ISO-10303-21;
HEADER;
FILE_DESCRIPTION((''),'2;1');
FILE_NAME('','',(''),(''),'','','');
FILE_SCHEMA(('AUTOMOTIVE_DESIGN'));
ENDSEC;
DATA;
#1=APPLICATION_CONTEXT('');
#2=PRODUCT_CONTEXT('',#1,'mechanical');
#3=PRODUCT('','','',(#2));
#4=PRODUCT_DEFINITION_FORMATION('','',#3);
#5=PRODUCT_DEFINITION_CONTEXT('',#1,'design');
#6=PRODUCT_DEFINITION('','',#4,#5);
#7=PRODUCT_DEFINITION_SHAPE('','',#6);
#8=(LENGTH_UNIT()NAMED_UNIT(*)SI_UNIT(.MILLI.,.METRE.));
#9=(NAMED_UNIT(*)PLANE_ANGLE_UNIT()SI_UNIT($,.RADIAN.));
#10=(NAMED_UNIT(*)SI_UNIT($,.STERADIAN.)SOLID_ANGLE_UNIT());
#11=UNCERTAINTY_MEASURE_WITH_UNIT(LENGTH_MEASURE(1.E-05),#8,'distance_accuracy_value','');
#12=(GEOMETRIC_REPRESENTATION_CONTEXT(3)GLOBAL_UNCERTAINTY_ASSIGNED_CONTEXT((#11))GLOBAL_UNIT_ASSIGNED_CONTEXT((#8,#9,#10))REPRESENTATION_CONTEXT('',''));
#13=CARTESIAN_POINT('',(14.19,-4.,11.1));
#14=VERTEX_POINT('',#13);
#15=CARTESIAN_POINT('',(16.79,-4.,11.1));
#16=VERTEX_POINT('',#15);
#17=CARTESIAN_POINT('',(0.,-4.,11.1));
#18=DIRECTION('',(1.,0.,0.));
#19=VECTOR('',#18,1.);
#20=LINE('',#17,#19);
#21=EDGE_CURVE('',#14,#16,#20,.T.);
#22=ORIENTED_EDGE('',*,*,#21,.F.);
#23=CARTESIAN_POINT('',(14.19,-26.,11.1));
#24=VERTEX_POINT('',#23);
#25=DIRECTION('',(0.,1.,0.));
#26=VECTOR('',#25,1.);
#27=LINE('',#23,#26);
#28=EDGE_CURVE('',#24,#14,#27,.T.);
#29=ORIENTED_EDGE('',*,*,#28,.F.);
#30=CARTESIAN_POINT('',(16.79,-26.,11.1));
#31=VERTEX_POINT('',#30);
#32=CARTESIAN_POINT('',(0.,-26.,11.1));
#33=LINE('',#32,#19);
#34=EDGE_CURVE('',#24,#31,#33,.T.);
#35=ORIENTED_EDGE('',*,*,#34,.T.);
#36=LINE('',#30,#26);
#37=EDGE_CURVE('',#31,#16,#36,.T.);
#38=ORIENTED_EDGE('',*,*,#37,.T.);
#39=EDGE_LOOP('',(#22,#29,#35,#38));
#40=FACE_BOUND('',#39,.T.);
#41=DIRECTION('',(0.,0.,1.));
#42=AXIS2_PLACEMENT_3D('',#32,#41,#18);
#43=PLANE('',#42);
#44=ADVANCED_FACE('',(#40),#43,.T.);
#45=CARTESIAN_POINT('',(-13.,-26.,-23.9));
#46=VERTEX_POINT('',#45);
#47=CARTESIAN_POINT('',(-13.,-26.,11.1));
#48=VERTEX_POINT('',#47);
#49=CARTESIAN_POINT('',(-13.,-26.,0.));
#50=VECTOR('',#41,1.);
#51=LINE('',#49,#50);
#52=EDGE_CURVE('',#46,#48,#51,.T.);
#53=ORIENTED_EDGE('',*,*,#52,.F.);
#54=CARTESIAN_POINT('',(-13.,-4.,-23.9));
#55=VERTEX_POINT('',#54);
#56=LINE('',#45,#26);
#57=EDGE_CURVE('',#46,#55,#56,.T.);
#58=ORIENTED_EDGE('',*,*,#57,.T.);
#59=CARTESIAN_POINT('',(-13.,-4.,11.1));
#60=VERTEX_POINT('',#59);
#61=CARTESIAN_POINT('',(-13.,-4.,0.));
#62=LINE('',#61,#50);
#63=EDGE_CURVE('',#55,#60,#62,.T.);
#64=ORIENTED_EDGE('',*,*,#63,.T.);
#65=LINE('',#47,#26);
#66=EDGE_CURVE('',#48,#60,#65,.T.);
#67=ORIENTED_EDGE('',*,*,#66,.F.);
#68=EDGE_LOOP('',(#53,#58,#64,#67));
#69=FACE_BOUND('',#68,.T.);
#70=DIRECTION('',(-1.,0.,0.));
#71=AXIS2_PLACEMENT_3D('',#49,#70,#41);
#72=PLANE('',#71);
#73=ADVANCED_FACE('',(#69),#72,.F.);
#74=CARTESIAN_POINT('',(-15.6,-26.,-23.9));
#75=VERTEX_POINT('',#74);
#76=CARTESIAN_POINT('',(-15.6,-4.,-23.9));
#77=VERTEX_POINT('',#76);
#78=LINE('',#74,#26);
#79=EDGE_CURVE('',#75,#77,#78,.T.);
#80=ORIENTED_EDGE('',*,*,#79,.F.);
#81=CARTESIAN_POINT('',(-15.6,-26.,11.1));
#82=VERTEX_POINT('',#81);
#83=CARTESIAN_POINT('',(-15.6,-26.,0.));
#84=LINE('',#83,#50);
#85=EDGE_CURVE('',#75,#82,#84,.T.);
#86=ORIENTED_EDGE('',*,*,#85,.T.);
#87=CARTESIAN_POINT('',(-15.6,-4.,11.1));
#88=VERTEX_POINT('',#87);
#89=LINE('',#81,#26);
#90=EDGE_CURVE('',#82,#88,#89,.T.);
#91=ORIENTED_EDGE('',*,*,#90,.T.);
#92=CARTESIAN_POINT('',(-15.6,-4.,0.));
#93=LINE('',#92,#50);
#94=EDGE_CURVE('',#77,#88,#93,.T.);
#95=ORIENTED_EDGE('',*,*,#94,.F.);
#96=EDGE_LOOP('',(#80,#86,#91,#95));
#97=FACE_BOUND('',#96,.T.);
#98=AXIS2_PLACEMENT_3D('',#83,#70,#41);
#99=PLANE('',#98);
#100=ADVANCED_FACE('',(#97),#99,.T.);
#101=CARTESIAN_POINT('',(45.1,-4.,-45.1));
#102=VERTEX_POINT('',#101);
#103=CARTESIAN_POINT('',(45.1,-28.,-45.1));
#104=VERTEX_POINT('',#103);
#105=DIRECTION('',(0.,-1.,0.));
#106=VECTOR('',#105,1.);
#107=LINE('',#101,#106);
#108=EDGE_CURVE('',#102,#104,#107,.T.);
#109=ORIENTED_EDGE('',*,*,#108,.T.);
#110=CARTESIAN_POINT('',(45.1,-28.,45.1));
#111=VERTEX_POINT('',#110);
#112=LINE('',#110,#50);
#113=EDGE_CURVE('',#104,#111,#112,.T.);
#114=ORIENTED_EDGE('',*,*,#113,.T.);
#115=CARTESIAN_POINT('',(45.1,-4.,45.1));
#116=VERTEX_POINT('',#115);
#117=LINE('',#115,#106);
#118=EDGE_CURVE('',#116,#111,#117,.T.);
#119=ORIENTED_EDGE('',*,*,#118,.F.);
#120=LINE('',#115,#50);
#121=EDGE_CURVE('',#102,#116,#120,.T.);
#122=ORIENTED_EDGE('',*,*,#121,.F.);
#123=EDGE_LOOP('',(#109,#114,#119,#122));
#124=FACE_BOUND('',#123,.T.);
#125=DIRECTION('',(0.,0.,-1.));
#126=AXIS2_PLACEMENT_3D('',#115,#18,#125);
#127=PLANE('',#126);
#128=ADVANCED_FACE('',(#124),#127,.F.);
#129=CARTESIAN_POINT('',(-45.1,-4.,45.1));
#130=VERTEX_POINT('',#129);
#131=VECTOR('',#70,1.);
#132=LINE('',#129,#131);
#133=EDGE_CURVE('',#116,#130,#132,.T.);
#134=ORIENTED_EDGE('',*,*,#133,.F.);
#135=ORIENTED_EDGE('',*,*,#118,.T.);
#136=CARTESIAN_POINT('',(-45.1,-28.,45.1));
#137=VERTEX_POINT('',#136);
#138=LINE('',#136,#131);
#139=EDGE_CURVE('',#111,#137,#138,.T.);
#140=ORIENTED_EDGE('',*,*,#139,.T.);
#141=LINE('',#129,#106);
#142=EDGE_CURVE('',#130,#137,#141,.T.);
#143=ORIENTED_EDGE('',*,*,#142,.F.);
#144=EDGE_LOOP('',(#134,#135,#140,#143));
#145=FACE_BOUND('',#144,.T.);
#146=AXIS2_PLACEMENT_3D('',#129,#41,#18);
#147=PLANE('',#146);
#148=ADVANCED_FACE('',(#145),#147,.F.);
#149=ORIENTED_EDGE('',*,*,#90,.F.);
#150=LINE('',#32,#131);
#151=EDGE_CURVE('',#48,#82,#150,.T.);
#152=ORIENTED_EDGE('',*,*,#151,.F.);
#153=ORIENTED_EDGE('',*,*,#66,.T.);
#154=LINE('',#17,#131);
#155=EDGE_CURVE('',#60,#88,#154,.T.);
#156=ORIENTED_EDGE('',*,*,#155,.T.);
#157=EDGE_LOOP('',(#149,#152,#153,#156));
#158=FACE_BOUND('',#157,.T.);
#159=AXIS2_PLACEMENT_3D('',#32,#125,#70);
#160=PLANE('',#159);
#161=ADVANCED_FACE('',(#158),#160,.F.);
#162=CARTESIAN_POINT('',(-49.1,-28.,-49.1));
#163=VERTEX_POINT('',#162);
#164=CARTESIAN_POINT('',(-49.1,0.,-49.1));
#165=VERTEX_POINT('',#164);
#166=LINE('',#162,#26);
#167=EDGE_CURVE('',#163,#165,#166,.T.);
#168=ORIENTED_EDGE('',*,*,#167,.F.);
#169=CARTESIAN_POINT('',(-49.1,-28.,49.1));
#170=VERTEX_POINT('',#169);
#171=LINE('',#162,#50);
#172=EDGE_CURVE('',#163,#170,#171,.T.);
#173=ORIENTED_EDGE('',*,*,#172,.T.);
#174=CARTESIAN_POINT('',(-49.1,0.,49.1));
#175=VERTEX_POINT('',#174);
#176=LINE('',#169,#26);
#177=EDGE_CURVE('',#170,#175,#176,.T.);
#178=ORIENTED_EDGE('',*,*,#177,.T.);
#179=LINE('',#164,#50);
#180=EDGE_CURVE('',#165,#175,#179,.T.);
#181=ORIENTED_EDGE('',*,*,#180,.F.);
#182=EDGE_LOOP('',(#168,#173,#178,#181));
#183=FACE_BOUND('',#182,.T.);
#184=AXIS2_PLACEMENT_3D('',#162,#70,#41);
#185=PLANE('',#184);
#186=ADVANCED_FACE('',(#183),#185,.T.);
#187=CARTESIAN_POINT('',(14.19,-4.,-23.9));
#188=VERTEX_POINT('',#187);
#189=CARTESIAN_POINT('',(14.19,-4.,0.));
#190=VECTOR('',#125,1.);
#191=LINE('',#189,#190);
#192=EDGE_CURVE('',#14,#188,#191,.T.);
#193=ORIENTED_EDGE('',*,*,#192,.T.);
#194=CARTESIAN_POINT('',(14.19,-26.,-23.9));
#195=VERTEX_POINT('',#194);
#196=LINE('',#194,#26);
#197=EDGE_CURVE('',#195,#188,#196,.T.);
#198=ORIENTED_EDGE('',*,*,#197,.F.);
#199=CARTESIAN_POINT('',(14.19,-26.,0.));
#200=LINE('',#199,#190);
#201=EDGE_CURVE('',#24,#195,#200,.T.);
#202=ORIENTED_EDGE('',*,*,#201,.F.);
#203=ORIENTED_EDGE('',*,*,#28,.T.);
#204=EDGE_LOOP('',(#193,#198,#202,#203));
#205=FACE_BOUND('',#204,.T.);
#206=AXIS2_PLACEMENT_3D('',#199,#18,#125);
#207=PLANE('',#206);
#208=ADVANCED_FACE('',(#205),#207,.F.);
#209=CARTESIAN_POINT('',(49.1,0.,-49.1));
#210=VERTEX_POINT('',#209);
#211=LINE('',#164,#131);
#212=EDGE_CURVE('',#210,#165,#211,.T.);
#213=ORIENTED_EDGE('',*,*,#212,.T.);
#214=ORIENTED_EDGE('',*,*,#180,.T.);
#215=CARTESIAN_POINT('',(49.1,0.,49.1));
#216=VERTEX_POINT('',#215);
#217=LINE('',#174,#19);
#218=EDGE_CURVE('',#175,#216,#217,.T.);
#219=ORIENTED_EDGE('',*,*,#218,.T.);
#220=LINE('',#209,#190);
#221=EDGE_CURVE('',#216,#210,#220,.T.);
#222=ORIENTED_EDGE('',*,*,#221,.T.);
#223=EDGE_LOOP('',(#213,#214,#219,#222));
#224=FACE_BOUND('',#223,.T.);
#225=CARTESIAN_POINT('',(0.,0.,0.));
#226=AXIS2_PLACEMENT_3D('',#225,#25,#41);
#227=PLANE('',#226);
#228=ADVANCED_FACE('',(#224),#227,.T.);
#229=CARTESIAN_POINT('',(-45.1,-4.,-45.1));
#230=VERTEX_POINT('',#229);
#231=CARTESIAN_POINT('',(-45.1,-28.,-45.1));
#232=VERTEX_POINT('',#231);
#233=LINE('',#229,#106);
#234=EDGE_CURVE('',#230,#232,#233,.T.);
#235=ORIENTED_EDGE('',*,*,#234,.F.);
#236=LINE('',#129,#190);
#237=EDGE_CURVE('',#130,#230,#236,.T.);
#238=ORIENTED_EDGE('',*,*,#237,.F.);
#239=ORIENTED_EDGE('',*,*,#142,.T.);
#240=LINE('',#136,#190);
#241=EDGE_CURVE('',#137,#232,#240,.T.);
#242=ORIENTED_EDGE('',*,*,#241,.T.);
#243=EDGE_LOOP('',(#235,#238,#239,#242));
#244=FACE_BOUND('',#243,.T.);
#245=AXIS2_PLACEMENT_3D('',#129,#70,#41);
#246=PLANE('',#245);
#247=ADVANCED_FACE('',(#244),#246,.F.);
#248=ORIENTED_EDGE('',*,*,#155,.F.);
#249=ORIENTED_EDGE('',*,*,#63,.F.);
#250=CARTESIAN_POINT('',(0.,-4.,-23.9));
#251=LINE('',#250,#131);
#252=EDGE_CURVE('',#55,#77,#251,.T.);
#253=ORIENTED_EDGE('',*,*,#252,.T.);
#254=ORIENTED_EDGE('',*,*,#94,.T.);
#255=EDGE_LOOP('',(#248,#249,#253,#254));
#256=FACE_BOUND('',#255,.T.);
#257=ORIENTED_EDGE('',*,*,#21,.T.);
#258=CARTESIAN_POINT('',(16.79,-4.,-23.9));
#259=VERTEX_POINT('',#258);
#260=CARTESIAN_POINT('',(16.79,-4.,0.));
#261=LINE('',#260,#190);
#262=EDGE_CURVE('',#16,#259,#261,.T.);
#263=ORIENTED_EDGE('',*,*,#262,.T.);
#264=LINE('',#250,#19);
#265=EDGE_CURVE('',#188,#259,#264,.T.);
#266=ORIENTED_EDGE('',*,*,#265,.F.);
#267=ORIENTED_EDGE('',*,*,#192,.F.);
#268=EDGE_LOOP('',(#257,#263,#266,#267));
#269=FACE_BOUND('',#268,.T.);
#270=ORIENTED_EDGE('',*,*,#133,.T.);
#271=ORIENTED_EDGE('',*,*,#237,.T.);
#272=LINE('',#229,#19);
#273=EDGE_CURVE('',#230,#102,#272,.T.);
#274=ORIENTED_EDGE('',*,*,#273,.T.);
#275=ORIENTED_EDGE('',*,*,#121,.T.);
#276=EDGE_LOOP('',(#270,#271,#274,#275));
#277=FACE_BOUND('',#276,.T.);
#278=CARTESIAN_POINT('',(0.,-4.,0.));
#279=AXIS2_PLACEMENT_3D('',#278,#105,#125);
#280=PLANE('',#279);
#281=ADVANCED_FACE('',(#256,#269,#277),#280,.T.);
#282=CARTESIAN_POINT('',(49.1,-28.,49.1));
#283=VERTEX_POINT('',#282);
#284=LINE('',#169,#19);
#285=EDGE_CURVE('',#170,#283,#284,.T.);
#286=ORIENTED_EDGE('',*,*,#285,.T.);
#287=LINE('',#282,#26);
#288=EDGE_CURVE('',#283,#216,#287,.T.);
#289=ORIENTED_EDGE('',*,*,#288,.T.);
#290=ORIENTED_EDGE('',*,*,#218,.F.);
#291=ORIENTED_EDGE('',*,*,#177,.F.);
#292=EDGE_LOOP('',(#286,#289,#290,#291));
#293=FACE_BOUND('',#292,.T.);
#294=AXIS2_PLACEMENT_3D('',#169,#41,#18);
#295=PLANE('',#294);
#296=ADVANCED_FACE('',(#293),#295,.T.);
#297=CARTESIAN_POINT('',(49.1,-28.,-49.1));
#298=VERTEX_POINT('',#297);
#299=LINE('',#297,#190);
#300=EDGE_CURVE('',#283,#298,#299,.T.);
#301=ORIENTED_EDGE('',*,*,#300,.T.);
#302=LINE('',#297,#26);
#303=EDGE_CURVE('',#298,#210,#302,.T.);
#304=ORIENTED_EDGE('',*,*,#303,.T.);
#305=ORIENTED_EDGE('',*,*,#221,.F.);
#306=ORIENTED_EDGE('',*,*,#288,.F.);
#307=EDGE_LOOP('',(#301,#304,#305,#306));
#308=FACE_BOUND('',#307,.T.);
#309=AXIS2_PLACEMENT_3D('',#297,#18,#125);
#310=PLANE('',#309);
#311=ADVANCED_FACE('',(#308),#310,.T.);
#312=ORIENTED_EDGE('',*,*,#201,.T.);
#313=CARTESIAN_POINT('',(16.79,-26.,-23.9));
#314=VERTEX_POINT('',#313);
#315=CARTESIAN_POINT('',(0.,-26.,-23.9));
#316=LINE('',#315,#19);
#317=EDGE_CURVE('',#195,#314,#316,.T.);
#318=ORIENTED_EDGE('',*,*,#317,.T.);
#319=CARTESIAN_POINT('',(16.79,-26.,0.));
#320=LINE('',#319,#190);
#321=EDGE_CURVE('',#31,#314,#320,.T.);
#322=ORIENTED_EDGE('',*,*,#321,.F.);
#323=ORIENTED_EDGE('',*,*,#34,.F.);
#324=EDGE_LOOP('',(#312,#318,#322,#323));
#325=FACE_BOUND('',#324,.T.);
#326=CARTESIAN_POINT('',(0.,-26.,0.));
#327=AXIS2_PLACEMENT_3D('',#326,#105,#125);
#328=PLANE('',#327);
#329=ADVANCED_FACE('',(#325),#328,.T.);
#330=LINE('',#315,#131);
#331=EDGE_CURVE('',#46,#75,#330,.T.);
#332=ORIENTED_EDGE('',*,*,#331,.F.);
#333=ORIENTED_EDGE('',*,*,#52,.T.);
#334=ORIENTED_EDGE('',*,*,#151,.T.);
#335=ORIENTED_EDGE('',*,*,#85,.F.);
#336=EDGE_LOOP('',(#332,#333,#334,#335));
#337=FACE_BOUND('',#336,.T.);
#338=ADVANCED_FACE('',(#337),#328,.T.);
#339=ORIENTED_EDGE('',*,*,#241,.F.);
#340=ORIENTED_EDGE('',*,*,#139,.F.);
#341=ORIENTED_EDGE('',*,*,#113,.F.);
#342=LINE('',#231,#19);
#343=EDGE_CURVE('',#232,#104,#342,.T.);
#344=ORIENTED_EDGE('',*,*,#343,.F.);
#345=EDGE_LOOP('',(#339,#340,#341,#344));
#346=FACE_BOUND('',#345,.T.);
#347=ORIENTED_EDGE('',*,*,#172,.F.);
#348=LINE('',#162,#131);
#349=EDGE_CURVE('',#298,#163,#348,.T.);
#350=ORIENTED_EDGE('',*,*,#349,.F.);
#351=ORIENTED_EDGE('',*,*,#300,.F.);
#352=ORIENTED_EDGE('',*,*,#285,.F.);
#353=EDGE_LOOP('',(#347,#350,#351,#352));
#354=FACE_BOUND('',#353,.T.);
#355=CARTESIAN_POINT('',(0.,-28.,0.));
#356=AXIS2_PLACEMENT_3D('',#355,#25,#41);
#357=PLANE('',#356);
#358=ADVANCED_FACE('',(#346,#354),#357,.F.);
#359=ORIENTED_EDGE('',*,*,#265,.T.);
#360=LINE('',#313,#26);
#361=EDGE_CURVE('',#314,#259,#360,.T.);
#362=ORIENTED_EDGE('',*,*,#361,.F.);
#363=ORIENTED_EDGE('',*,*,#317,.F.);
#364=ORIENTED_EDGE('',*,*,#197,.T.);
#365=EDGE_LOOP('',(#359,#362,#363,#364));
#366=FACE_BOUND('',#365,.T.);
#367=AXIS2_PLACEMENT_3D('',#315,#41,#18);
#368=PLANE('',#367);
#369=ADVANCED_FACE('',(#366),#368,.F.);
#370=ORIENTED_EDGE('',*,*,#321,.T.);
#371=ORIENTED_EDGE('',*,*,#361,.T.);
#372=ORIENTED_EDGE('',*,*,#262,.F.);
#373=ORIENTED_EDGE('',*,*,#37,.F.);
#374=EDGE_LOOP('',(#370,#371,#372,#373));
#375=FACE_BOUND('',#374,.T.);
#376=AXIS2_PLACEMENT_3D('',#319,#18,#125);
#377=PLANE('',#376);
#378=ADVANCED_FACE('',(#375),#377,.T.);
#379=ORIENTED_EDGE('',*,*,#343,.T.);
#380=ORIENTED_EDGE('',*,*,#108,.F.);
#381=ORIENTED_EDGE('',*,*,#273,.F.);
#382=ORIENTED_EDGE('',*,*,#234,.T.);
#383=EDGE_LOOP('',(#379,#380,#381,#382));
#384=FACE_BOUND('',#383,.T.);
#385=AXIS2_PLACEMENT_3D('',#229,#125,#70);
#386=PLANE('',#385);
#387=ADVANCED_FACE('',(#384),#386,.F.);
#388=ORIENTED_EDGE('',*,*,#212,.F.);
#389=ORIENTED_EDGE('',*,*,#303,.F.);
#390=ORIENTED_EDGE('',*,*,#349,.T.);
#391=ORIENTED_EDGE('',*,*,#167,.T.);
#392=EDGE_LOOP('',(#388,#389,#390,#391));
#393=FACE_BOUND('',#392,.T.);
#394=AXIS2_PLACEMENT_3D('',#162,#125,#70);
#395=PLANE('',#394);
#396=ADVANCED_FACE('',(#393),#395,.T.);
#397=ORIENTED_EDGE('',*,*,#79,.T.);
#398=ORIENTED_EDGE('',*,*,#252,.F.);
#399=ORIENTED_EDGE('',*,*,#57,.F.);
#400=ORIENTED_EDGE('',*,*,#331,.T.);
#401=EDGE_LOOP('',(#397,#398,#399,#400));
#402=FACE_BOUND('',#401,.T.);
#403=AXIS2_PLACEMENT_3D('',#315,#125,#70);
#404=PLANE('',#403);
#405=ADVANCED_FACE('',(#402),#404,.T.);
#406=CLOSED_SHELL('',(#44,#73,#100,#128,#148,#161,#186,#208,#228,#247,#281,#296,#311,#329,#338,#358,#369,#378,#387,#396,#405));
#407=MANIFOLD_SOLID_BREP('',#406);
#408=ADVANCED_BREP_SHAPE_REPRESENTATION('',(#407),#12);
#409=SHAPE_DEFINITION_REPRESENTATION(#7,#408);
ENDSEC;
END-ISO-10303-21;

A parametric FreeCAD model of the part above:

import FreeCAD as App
import Part
import Sketcher
Q = App.Units.Quantity

doc = App.newDocument("Part")
body = doc.addObject("PartDesign::Body", "Body")

# Sketch on XZ plane
sketch1 = body.newObject("Sketcher::SketchObject", "Sketch")
sketch1.AttachmentSupport = (doc.getObject("XZ_Plane"), [""])
sketch1.MapMode = "FlatFace"
sketch1.addGeometry([
    Part.LineSegment(App.Vector(-49, -49, 0), App.Vector(-49, 49, 0)),
    Part.LineSegment(App.Vector(-49, 49, 0), App.Vector(49, 49, 0)),
    Part.LineSegment(App.Vector(49, 49, 0), App.Vector(49, -49, 0)),
    Part.LineSegment(App.Vector(49, -49, 0), App.Vector(-49, -49, 0)),
], False)
sketch1.addConstraint([
    Sketcher.Constraint("Coincident", 0, 2, 1, 1),
    Sketcher.Constraint("Coincident", 1, 2, 2, 1),
    Sketcher.Constraint("Coincident", 2, 2, 3, 1),
    Sketcher.Constraint("Coincident", 3, 2, 0, 1),
    Sketcher.Constraint("Vertical", 0),
    Sketcher.Constraint("Horizontal", 1),
    Sketcher.Constraint("Vertical", 2),
    Sketcher.Constraint("Horizontal", 3),
    Sketcher.Constraint("Symmetric", 0, 2, 2, 2, -1, 1),
    Sketcher.Constraint("Equal", 3, 0),
    Sketcher.Constraint("DistanceX", 1, 1, 1, 2, Q("98.2 mm")),
])
pad1 = body.newObject("PartDesign::Pad", "Pad")
pad1.Profile = sketch1
pad1.Length = 28

# Sketch on XZ plane
sketch2 = body.newObject("Sketcher::SketchObject", "Sketch001")
sketch2.AttachmentSupport = (doc.getObject("XZ_Plane"), [""])
sketch2.MapMode = "FlatFace"
sketch2.AttachmentOffset = App.Placement(App.Vector(0, 0, 28), App.Rotation())
sketch2.addGeometry([
    Part.LineSegment(App.Vector(-45, 45, 0), App.Vector(-45, -45, 0)),
    Part.LineSegment(App.Vector(-45, -45, 0), App.Vector(45, -45, 0)),
    Part.LineSegment(App.Vector(45, -45, 0), App.Vector(45, 45, 0)),
    Part.LineSegment(App.Vector(45, 45, 0), App.Vector(-45, 45, 0)),
], False)
sketch2.addConstraint([
    Sketcher.Constraint("Coincident", 0, 2, 1, 1),
    Sketcher.Constraint("Coincident", 1, 2, 2, 1),
    Sketcher.Constraint("Coincident", 2, 2, 3, 1),
    Sketcher.Constraint("Coincident", 3, 2, 0, 1),
    Sketcher.Constraint("Vertical", 0),
    Sketcher.Constraint("Horizontal", 1),
    Sketcher.Constraint("Vertical", 2),
    Sketcher.Constraint("Horizontal", 3),
    Sketcher.Constraint("Symmetric", 0, 2, 2, 2, -1, 1),
    Sketcher.Constraint("Equal", 3, 0),
    Sketcher.Constraint("DistanceX", 1, 1, 1, 2, Q("90.2 mm")),
])
pocket1 = body.newObject("PartDesign::Pocket", "Pocket")
pocket1.Profile = sketch2
pocket1.Length = 24

# Sketch on XZ plane
sketch3 = body.newObject("Sketcher::SketchObject", "Sketch002")
sketch3.AttachmentSupport = (doc.getObject("XZ_Plane"), [""])
sketch3.MapMode = "FlatFace"
sketch3.AttachmentOffset = App.Placement(App.Vector(0, 0, 4), App.Rotation())
sketch3.addGeometry([
    Part.LineSegment(App.Vector(-15.6, 11.1, 0), App.Vector(-15.6, -23.9, 0)),
    Part.LineSegment(App.Vector(-15.6, -23.9, 0), App.Vector(-13, -23.9, 0)),
    Part.LineSegment(App.Vector(-13, -23.9, 0), App.Vector(-13, 11.1, 0)),
    Part.LineSegment(App.Vector(-13, 11.1, 0), App.Vector(-15.6, 11.1, 0)),
], False)
sketch3.addConstraint([
    Sketcher.Constraint("Coincident", 0, 2, 1, 1),
    Sketcher.Constraint("Coincident", 1, 2, 2, 1),
    Sketcher.Constraint("Coincident", 2, 2, 3, 1),
    Sketcher.Constraint("Coincident", 3, 2, 0, 1),
    Sketcher.Constraint("Vertical", 0),
    Sketcher.Constraint("Horizontal", 1),
    Sketcher.Constraint("Vertical", 2),
    Sketcher.Constraint("Horizontal", 3),
    Sketcher.Constraint("DistanceY", 0, 2, 0, 1, Q("35 mm")),
    Sketcher.Constraint("DistanceX", 1, 1, 1, 2, Q("2.6 mm")),
    Sketcher.Constraint("DistanceX", 1, 2, -1, 1, Q("13 mm")),
    Sketcher.Constraint("DistanceY", 0, 2, -1, 1, Q("23.9 mm")),
])
pad2 = body.newObject("PartDesign::Pad", "Pad001")
pad2.Profile = sketch3
pad2.Length = 22

# Sketch on XZ plane
sketch4 = body.newObject("Sketcher::SketchObject", "Sketch003")
sketch4.AttachmentSupport = (doc.getObject("XZ_Plane"), [""])
sketch4.MapMode = "FlatFace"
sketch4.AttachmentOffset = App.Placement(App.Vector(0, 0, 4), App.Rotation())
sketch4.addGeometry([
    Part.LineSegment(App.Vector(14.2, 11.1, 0), App.Vector(14.2, -23.9, 0)),
    Part.LineSegment(App.Vector(14.2, -23.9, 0), App.Vector(16.8, -23.9, 0)),
    Part.LineSegment(App.Vector(16.8, -23.9, 0), App.Vector(16.8, 11.1, 0)),
    Part.LineSegment(App.Vector(16.8, 11.1, 0), App.Vector(14.2, 11.1, 0)),
], False)
sketch4.addConstraint([
    Sketcher.Constraint("Coincident", 0, 2, 1, 1),
    Sketcher.Constraint("Coincident", 1, 2, 2, 1),
    Sketcher.Constraint("Coincident", 2, 2, 3, 1),
    Sketcher.Constraint("Coincident", 3, 2, 0, 1),
    Sketcher.Constraint("Vertical", 0),
    Sketcher.Constraint("Horizontal", 1),
    Sketcher.Constraint("Vertical", 2),
    Sketcher.Constraint("Horizontal", 3),
    Sketcher.Constraint("DistanceY", 0, 2, 0, 1, Q("35 mm")),
    Sketcher.Constraint("DistanceX", 1, 1, 1, 2, Q("2.6 mm")),
    Sketcher.Constraint("DistanceY", 0, 2, -1, 1, Q("23.9 mm")),
    Sketcher.Constraint("DistanceX", -1, 1, 0, 2, Q("14.19 mm")),
])
pad3 = body.newObject("PartDesign::Pad", "Pad002")
pad3.Profile = sketch4
pad3.Length = 22

doc.recompute()
